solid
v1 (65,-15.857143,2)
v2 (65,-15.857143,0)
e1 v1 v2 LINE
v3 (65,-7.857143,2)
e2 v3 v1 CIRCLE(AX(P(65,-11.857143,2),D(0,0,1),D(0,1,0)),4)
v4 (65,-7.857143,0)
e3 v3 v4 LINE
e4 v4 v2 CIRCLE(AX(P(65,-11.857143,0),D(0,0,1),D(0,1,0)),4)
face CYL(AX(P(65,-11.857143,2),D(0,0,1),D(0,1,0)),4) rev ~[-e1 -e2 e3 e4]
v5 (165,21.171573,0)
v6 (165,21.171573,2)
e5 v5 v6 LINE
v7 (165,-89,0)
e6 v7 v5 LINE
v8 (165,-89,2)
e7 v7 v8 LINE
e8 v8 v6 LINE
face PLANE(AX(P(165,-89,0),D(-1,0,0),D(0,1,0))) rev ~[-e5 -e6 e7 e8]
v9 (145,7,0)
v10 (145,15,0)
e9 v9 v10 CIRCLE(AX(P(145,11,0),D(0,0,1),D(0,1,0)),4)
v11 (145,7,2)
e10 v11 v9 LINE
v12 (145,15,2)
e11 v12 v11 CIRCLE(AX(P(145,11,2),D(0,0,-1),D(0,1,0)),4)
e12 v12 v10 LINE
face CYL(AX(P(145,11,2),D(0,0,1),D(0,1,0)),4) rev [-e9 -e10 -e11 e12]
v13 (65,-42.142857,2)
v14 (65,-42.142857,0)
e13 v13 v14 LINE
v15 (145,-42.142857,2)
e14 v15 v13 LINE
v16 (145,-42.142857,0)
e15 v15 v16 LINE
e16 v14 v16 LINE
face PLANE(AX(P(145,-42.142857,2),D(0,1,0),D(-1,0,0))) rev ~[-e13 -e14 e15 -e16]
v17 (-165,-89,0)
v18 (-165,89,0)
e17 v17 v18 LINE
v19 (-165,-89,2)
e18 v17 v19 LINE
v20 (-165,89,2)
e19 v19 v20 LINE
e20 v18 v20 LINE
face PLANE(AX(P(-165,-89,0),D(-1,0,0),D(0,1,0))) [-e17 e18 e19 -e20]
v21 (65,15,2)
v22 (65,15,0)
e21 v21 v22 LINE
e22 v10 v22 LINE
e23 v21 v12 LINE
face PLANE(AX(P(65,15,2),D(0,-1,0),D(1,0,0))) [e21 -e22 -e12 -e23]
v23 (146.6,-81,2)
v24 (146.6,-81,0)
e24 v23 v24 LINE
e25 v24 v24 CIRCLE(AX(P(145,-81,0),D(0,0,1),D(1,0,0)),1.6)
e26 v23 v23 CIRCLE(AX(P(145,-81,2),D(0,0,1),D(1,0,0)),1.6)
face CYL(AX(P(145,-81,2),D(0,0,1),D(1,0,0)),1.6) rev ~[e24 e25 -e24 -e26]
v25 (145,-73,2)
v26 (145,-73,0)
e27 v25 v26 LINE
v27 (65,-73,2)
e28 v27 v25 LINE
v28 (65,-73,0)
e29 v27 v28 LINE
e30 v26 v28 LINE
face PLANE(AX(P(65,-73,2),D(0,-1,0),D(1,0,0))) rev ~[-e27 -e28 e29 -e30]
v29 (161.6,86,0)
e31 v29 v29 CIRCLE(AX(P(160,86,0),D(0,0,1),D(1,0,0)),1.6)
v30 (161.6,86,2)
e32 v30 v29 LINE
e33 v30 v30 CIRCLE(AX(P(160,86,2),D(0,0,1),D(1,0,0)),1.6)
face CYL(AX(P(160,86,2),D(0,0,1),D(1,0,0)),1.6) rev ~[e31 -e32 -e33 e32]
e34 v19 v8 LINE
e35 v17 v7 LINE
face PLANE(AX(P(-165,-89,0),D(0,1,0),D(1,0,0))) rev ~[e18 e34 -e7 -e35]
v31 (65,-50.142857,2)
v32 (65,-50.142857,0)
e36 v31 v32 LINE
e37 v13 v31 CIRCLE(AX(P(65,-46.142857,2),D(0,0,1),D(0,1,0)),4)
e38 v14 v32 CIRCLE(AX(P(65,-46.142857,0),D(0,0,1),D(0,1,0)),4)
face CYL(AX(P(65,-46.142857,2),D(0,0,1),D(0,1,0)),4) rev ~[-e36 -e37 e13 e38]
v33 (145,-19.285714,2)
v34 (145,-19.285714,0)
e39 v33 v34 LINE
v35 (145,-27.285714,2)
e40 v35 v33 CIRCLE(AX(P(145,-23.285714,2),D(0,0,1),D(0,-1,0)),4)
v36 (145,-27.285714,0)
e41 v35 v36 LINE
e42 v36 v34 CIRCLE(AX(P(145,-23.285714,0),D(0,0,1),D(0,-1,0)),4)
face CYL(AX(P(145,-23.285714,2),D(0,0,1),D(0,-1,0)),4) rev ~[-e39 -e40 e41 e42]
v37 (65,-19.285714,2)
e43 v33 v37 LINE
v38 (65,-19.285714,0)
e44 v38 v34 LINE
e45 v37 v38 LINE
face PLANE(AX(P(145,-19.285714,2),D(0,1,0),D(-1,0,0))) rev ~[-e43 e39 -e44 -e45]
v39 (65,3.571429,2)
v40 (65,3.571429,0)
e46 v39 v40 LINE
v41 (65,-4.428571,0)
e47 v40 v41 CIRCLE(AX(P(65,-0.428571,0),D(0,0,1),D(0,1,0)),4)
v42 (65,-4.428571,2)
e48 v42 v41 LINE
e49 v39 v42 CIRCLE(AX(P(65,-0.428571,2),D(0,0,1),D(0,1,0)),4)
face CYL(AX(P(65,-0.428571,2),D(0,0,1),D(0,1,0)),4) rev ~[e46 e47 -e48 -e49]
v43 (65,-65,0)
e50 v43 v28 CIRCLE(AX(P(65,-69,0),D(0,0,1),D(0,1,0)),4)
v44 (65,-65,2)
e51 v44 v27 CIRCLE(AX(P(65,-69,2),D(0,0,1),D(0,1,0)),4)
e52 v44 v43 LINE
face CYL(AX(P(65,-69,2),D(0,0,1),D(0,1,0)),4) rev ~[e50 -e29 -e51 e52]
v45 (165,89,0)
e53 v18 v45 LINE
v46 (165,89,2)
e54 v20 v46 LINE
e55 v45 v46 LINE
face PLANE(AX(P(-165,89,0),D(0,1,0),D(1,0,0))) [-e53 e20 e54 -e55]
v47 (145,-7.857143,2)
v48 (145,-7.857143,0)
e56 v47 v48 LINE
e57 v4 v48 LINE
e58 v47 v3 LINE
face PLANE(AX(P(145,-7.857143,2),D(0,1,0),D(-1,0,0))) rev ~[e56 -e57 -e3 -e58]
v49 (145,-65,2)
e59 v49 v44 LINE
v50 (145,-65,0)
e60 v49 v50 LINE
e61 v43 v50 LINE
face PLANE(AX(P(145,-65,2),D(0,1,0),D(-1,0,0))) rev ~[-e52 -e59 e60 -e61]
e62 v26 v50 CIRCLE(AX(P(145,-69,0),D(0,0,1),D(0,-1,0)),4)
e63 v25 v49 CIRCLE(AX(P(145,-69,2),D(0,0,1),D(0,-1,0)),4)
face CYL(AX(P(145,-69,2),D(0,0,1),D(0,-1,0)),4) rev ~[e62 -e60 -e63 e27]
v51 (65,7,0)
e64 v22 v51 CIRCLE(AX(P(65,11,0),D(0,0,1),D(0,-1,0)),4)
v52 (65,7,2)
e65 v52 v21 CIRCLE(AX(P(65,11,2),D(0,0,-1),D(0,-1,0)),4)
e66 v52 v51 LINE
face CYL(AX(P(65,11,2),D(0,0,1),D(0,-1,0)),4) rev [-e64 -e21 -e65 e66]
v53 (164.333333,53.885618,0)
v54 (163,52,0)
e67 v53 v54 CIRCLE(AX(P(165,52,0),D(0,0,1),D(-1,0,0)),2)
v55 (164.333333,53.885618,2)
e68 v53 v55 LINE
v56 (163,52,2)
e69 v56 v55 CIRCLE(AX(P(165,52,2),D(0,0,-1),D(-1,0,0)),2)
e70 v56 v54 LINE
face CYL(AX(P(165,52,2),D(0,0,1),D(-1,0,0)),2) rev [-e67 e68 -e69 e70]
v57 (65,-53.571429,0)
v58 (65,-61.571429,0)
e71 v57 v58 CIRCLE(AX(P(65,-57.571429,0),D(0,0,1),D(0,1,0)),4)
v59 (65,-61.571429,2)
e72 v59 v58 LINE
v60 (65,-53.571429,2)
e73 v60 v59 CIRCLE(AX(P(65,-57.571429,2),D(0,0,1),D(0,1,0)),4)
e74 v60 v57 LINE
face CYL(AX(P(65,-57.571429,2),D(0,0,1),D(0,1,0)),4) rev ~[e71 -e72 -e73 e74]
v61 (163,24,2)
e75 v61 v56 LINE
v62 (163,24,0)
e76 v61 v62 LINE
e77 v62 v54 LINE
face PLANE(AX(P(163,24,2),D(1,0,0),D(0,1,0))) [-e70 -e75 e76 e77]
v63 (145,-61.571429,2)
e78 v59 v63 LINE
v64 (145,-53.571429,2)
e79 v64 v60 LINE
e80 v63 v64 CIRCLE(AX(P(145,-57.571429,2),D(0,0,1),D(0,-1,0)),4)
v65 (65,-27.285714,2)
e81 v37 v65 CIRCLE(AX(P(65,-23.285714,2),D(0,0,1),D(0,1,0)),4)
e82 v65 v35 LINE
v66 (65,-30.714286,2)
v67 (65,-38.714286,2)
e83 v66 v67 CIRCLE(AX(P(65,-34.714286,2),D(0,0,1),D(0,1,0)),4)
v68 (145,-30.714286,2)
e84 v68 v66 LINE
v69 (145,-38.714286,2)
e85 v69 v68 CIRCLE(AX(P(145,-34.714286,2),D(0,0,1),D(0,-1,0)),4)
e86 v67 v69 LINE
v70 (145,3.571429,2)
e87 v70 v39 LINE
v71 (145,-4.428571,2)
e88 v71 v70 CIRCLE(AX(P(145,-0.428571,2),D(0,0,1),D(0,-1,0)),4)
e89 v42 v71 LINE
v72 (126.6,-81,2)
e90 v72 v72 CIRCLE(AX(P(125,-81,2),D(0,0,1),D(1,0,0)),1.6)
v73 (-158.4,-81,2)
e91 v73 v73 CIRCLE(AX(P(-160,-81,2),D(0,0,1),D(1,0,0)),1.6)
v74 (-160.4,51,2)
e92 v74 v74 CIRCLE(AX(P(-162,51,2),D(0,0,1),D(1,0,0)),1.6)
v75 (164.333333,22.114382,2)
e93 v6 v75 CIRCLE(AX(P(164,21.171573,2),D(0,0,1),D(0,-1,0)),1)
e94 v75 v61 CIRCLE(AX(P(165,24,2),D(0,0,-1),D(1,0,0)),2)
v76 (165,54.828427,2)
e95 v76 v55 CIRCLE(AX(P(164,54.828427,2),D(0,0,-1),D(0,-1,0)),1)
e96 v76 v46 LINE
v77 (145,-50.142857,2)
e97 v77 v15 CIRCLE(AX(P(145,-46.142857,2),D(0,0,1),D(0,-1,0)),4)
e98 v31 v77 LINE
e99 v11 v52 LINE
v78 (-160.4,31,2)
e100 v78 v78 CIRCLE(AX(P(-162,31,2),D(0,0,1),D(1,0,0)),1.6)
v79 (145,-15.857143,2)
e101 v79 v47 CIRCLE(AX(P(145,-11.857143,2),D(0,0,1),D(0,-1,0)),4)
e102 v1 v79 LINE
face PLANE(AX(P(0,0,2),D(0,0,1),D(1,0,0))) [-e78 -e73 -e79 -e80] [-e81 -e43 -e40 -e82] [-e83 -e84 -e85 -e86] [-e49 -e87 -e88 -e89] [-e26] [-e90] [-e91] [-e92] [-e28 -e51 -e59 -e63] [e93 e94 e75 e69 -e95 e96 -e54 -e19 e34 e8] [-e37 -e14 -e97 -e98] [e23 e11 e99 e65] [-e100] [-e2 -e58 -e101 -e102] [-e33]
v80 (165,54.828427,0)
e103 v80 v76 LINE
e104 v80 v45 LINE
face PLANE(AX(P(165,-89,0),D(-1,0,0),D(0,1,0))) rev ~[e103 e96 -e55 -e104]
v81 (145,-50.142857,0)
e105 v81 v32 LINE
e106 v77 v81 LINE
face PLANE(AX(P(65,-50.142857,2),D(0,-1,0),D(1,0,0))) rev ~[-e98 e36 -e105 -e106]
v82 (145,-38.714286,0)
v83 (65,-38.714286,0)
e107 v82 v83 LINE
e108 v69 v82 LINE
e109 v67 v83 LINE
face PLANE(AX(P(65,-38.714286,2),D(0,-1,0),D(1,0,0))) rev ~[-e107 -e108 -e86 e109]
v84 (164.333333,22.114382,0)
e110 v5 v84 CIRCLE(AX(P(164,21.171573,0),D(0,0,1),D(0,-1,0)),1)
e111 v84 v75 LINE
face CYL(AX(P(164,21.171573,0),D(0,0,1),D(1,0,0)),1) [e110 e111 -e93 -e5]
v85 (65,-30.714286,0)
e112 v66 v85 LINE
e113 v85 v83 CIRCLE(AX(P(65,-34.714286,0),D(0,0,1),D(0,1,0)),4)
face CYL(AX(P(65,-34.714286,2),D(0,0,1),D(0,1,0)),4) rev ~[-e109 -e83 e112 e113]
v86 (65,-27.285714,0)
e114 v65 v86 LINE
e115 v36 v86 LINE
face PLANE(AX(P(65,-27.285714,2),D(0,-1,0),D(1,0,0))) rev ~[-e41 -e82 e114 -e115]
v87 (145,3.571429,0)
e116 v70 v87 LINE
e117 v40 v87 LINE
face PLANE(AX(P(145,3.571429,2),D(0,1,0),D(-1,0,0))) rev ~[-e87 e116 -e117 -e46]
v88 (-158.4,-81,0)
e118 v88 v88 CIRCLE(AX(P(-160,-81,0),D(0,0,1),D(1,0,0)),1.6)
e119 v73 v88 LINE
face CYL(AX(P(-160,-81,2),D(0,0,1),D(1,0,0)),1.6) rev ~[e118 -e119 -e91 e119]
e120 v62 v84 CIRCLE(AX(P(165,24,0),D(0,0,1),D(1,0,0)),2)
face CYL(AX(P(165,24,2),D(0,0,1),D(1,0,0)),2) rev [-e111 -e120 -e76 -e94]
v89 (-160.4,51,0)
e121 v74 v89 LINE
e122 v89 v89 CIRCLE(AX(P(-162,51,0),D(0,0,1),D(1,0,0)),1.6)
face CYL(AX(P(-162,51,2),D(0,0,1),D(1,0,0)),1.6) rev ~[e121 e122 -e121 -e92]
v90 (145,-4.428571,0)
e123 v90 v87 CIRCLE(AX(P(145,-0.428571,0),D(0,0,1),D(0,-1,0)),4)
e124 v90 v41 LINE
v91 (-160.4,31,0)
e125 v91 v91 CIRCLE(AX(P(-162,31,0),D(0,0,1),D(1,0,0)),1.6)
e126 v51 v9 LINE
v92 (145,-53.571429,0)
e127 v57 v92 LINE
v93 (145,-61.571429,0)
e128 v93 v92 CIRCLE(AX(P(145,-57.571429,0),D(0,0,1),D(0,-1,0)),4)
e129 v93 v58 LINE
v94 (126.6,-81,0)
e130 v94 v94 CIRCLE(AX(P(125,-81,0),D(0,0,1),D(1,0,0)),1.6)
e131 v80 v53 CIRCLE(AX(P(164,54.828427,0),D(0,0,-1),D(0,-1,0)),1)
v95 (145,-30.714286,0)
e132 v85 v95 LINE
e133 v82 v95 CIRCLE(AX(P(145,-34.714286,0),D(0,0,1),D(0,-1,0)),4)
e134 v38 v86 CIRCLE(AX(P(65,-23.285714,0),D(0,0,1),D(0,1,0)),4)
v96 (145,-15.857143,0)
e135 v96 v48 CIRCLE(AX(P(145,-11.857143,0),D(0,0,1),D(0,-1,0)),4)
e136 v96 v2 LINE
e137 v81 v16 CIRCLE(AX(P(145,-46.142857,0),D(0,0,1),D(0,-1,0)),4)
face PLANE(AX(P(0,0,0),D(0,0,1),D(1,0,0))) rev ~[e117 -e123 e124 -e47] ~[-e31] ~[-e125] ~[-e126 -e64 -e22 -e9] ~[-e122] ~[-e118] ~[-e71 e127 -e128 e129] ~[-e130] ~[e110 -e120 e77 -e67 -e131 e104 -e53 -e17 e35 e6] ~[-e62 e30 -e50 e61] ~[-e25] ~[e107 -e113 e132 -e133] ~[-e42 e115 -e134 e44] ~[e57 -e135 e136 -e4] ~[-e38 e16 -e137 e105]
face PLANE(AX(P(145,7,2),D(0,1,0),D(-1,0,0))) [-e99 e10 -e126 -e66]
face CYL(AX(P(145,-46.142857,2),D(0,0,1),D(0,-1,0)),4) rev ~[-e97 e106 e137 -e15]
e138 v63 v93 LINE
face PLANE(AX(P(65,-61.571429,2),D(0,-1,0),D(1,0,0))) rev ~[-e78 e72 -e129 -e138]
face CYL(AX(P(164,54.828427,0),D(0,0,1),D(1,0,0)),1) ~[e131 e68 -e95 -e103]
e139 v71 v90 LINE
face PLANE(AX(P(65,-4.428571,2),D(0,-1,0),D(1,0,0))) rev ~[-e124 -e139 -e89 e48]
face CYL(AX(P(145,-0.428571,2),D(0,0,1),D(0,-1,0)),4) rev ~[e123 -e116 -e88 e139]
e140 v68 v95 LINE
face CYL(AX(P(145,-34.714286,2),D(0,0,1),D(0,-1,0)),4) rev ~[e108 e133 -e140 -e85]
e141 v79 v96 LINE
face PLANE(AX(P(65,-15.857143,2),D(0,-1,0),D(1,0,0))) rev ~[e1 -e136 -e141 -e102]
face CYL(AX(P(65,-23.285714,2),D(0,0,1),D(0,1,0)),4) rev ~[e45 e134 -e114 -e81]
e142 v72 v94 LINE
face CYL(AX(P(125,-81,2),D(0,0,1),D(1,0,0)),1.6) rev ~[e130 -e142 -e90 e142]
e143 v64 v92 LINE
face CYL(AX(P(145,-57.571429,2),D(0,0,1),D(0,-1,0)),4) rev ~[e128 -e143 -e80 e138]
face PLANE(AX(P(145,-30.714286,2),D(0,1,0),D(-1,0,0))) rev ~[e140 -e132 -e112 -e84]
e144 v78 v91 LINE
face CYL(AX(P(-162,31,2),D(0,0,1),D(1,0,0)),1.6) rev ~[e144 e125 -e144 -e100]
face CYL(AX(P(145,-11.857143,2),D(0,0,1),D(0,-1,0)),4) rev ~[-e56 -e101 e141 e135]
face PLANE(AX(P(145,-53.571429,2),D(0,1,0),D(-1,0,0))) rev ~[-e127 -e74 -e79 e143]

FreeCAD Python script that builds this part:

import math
import FreeCAD as App
import Part
import Sketcher


def edges_at(feature, points):
    """Names of the edges that pass closest to the given points."""
    edges = feature.Shape.Edges
    near = lambda p: min(range(len(edges)), key=lambda i: edges[i].distToShape(Part.Vertex(*p))[0])
    return sorted({f"Edge{near(p) + 1}" for p in points})

doc = App.newDocument("Part")
params = doc.addObject("Spreadsheet::Sheet", "Params")
for row, (alias, value) in enumerate([
    ("sketch1_width", "330 mm"),
    ("sketch1_height", "178 mm"),
    ("pad1_length", "2 mm"),
    ("sketch2_radius", "4 mm"),
    ("sketch2_width", "80 mm"),
    ("sketch3_radius", "4 mm"),
    ("sketch3_width", "80 mm"),
    ("sketch4_radius", "4 mm"),
    ("sketch4_width", "80 mm"),
    ("sketch5_radius", "4 mm"),
    ("sketch5_width", "80 mm"),
    ("sketch6_radius", "4 mm"),
    ("sketch6_width", "80 mm"),
    ("sketch7_radius", "4 mm"),
    ("sketch7_width", "80 mm"),
    ("sketch8_radius", "4 mm"),
    ("sketch8_width", "80 mm"),
    ("sketch9_radius", "4 mm"),
    ("sketch9_width", "80 mm"),
    ("sketch10_diameter", "3.2 mm"),
    ("sketch11_diameter", "3.2 mm"),
    ("sketch12_diameter", "3.2 mm"),
    ("sketch13_diameter", "3.2 mm"),
    ("sketch14_diameter", "3.2 mm"),
    ("sketch15_diameter", "3.2 mm"),
    ("sketch16_radius", "2 mm"),
    ("sketch16_height", "28 mm"),
    ("fillet_radius", "1 mm"),
], start=1):
    params.set(f"A{row}", alias)
    params.set(f"B{row}", "=" + value)
    params.setAlias(f"B{row}", alias)

body = doc.addObject("PartDesign::Body", "Body")

# Sketch on XY plane
sketch1 = body.newObject("Sketcher::SketchObject", "Sketch")
sketch1.AttachmentSupport = (doc.getObject("XY_Plane"), [""])
sketch1.MapMode = "FlatFace"
sketch1.addGeometry([
    Part.LineSegment(App.Vector(-165, 89, 0), App.Vector(-165, -89, 0)),
    Part.LineSegment(App.Vector(-165, -89, 0), App.Vector(165, -89, 0)),
    Part.LineSegment(App.Vector(165, -89, 0), App.Vector(165, 89, 0)),
    Part.LineSegment(App.Vector(165, 89, 0), App.Vector(-165, 89, 0)),
], False)
sketch1.addConstraint([
    Sketcher.Constraint("Coincident", 0, 2, 1, 1),
    Sketcher.Constraint("Coincident", 1, 2, 2, 1),
    Sketcher.Constraint("Coincident", 2, 2, 3, 1),
    Sketcher.Constraint("Coincident", 3, 2, 0, 1),
    Sketcher.Constraint("Vertical", 0),
    Sketcher.Constraint("Horizontal", 1),
    Sketcher.Constraint("Vertical", 2),
    Sketcher.Constraint("Horizontal", 3),
    Sketcher.Constraint("Symmetric", 0, 2, 2, 2, -1, 1),
    Sketcher.Constraint("DistanceX", 1, 1, 1, 2, 330.0),
    Sketcher.Constraint("DistanceY", 0, 2, 0, 1, 178.0),
])
sketch1.setExpression("Constraints[9]", "Params.sketch1_width")
sketch1.setExpression("Constraints[10]", "Params.sketch1_height")
pad1 = body.newObject("PartDesign::Pad", "Pad")
pad1.Profile = sketch1
pad1.setExpression("Length", "Params.pad1_length")

# Sketch on XY plane
sketch2 = body.newObject("Sketcher::SketchObject", "Sketch001")
sketch2.AttachmentSupport = (doc.getObject("XY_Plane"), [""])
sketch2.MapMode = "FlatFace"
sketch2.AttachmentOffset = App.Placement(App.Vector(0, 0, 2), App.Rotation())
sketch2.addGeometry([
    Part.LineSegment(App.Vector(145, 15, 0), App.Vector(65, 15, 0)),
    Part.ArcOfCircle(Part.Circle(App.Vector(65, 11, 0), App.Vector(0, 0, 1), 4), math.radians(90), math.radians(270)),
    Part.LineSegment(App.Vector(65, 7, 0), App.Vector(145, 7, 0)),
    Part.ArcOfCircle(Part.Circle(App.Vector(145, 11, 0), App.Vector(0, 0, 1), 4), math.radians(-90), math.radians(90)),
], False)
sketch2.addConstraint([
    Sketcher.Constraint("Tangent", 0, 2, 1, 1),
    Sketcher.Constraint("Tangent", 1, 2, 2, 1),
    Sketcher.Constraint("Tangent", 2, 2, 3, 1),
    Sketcher.Constraint("Tangent", 3, 2, 0, 1),
    Sketcher.Constraint("Horizontal", 0),
    Sketcher.Constraint("Horizontal", 2),
    Sketcher.Constraint("Radius", 1, 4.0),
    Sketcher.Constraint("DistanceX", 0, 2, 0, 1, 80.0),
    Sketcher.Constraint("DistanceX", -1, 1, 1, 3, 65.0),
    Sketcher.Constraint("DistanceY", -1, 1, 1, 3, 11.0),
])
sketch2.setExpression("Constraints[6]", "Params.sketch2_radius")
sketch2.setExpression("Constraints[7]", "Params.sketch2_width")
pocket1 = body.newObject("PartDesign::Pocket", "Pocket")
pocket1.Profile = sketch2
pocket1.Type = "UpToFirst"

# Sketch on XY plane
sketch3 = body.newObject("Sketcher::SketchObject", "Sketch002")
sketch3.AttachmentSupport = (doc.getObject("XY_Plane"), [""])
sketch3.MapMode = "FlatFace"
sketch3.AttachmentOffset = App.Placement(App.Vector(0, 0, 2), App.Rotation())
sketch3.addGeometry([
    Part.LineSegment(App.Vector(65, -4.4, 0), App.Vector(145, -4.4, 0)),
    Part.ArcOfCircle(Part.Circle(App.Vector(145, -0.4, 0), App.Vector(0, 0, 1), 4), math.radians(-90), math.radians(90)),
    Part.LineSegment(App.Vector(145, 3.6, 0), App.Vector(65, 3.6, 0)),
    Part.ArcOfCircle(Part.Circle(App.Vector(65, -0.4, 0), App.Vector(0, 0, 1), 4), math.radians(90), math.radians(270)),
], False)
sketch3.addConstraint([
    Sketcher.Constraint("Tangent", 0, 2, 1, 1),
    Sketcher.Constraint("Tangent", 1, 2, 2, 1),
    Sketcher.Constraint("Tangent", 2, 2, 3, 1),
    Sketcher.Constraint("Tangent", 3, 2, 0, 1),
    Sketcher.Constraint("Horizontal", 0),
    Sketcher.Constraint("Horizontal", 2),
    Sketcher.Constraint("Radius", 1, 4.0),
    Sketcher.Constraint("DistanceX", 0, 1, 0, 2, 80.0),
    Sketcher.Constraint("DistanceX", -1, 1, 1, 3, 145.0),
    Sketcher.Constraint("DistanceY", 1, 3, -1, 1, 0.428571),
])
sketch3.setExpression("Constraints[6]", "Params.sketch3_radius")
sketch3.setExpression("Constraints[7]", "Params.sketch3_width")
pocket2 = body.newObject("PartDesign::Pocket", "Pocket001")
pocket2.Profile = sketch3
pocket2.Type = "UpToFirst"

# Sketch on XY plane
sketch4 = body.newObject("Sketcher::SketchObject", "Sketch003")
sketch4.AttachmentSupport = (doc.getObject("XY_Plane"), [""])
sketch4.MapMode = "FlatFace"
sketch4.AttachmentOffset = App.Placement(App.Vector(0, 0, 2), App.Rotation())
sketch4.addGeometry([
    Part.LineSegment(App.Vector(65, -15.9, 0), App.Vector(145, -15.9, 0)),
    Part.ArcOfCircle(Part.Circle(App.Vector(145, -11.9, 0), App.Vector(0, 0, 1), 4), math.radians(-90), math.radians(90)),
    Part.LineSegment(App.Vector(145, -7.9, 0), App.Vector(65, -7.9, 0)),
    Part.ArcOfCircle(Part.Circle(App.Vector(65, -11.9, 0), App.Vector(0, 0, 1), 4), math.radians(90), math.radians(270)),
], False)
sketch4.addConstraint([
    Sketcher.Constraint("Tangent", 0, 2, 1, 1),
    Sketcher.Constraint("Tangent", 1, 2, 2, 1),
    Sketcher.Constraint("Tangent", 2, 2, 3, 1),
    Sketcher.Constraint("Tangent", 3, 2, 0, 1),
    Sketcher.Constraint("Horizontal", 0),
    Sketcher.Constraint("Horizontal", 2),
    Sketcher.Constraint("Radius", 1, 4.0),
    Sketcher.Constraint("DistanceX", 0, 1, 0, 2, 80.0),
    Sketcher.Constraint("DistanceX", -1, 1, 1, 3, 145.0),
    Sketcher.Constraint("DistanceY", 1, 3, -1, 1, 11.857143),
])
sketch4.setExpression("Constraints[6]", "Params.sketch4_radius")
sketch4.setExpression("Constraints[7]", "Params.sketch4_width")
pocket3 = body.newObject("PartDesign::Pocket", "Pocket002")
pocket3.Profile = sketch4
pocket3.Type = "UpToFirst"

# Sketch on XY plane
sketch5 = body.newObject("Sketcher::SketchObject", "Sketch004")
sketch5.AttachmentSupport = (doc.getObject("XY_Plane"), [""])
sketch5.MapMode = "FlatFace"
sketch5.AttachmentOffset = App.Placement(App.Vector(0, 0, 2), App.Rotation())
sketch5.addGeometry([
    Part.LineSegment(App.Vector(65, -27.3, 0), App.Vector(145, -27.3, 0)),
    Part.ArcOfCircle(Part.Circle(App.Vector(145, -23.3, 0), App.Vector(0, 0, 1), 4), math.radians(-90), math.radians(90)),
    Part.LineSegment(App.Vector(145, -19.3, 0), App.Vector(65, -19.3, 0)),
    Part.ArcOfCircle(Part.Circle(App.Vector(65, -23.3, 0), App.Vector(0, 0, 1), 4), math.radians(90), math.radians(270)),
], False)
sketch5.addConstraint([
    Sketcher.Constraint("Tangent", 0, 2, 1, 1),
    Sketcher.Constraint("Tangent", 1, 2, 2, 1),
    Sketcher.Constraint("Tangent", 2, 2, 3, 1),
    Sketcher.Constraint("Tangent", 3, 2, 0, 1),
    Sketcher.Constraint("Horizontal", 0),
    Sketcher.Constraint("Horizontal", 2),
    Sketcher.Constraint("Radius", 1, 4.0),
    Sketcher.Constraint("DistanceX", 0, 1, 0, 2, 80.0),
    Sketcher.Constraint("DistanceX", -1, 1, 1, 3, 145.0),
    Sketcher.Constraint("DistanceY", 1, 3, -1, 1, 23.285714),
])
sketch5.setExpression("Constraints[6]", "Params.sketch5_radius")
sketch5.setExpression("Constraints[7]", "Params.sketch5_width")
pocket4 = body.newObject("PartDesign::Pocket", "Pocket003")
pocket4.Profile = sketch5
pocket4.Type = "UpToFirst"

# Sketch on XY plane
sketch6 = body.newObject("Sketcher::SketchObject", "Sketch005")
sketch6.AttachmentSupport = (doc.getObject("XY_Plane"), [""])
sketch6.MapMode = "FlatFace"
sketch6.AttachmentOffset = App.Placement(App.Vector(0, 0, 2), App.Rotation())
sketch6.addGeometry([
    Part.LineSegment(App.Vector(65, -38.7, 0), App.Vector(145, -38.7, 0)),
    Part.ArcOfCircle(Part.Circle(App.Vector(145, -34.7, 0), App.Vector(0, 0, 1), 4), math.radians(-90), math.radians(90)),
    Part.LineSegment(App.Vector(145, -30.7, 0), App.Vector(65, -30.7, 0)),
    Part.ArcOfCircle(Part.Circle(App.Vector(65, -34.7, 0), App.Vector(0, 0, 1), 4), math.radians(90), math.radians(270)),
], False)
sketch6.addConstraint([
    Sketcher.Constraint("Tangent", 0, 2, 1, 1),
    Sketcher.Constraint("Tangent", 1, 2, 2, 1),
    Sketcher.Constraint("Tangent", 2, 2, 3, 1),
    Sketcher.Constraint("Tangent", 3, 2, 0, 1),
    Sketcher.Constraint("Horizontal", 0),
    Sketcher.Constraint("Horizontal", 2),
    Sketcher.Constraint("Radius", 1, 4.0),
    Sketcher.Constraint("DistanceX", 0, 1, 0, 2, 80.0),
    Sketcher.Constraint("DistanceX", -1, 1, 1, 3, 145.0),
    Sketcher.Constraint("DistanceY", 1, 3, -1, 1, 34.714286),
])
sketch6.setExpression("Constraints[6]", "Params.sketch6_radius")
sketch6.setExpression("Constraints[7]", "Params.sketch6_width")
pocket5 = body.newObject("PartDesign::Pocket", "Pocket004")
pocket5.Profile = sketch6
pocket5.Type = "UpToFirst"

# Sketch on XY plane
sketch7 = body.newObject("Sketcher::SketchObject", "Sketch006")
sketch7.AttachmentSupport = (doc.getObject("XY_Plane"), [""])
sketch7.MapMode = "FlatFace"
sketch7.AttachmentOffset = App.Placement(App.Vector(0, 0, 2), App.Rotation())
sketch7.addGeometry([
    Part.LineSegment(App.Vector(65, -50.1, 0), App.Vector(145, -50.1, 0)),
    Part.ArcOfCircle(Part.Circle(App.Vector(145, -46.1, 0), App.Vector(0, 0, 1), 4), math.radians(-90), math.radians(90)),
    Part.LineSegment(App.Vector(145, -42.1, 0), App.Vector(65, -42.1, 0)),
    Part.ArcOfCircle(Part.Circle(App.Vector(65, -46.1, 0), App.Vector(0, 0, 1), 4), math.radians(90), math.radians(270)),
], False)
sketch7.addConstraint([
    Sketcher.Constraint("Tangent", 0, 2, 1, 1),
    Sketcher.Constraint("Tangent", 1, 2, 2, 1),
    Sketcher.Constraint("Tangent", 2, 2, 3, 1),
    Sketcher.Constraint("Tangent", 3, 2, 0, 1),
    Sketcher.Constraint("Horizontal", 0),
    Sketcher.Constraint("Horizontal", 2),
    Sketcher.Constraint("Radius", 1, 4.0),
    Sketcher.Constraint("DistanceX", 0, 1, 0, 2, 80.0),
    Sketcher.Constraint("DistanceX", -1, 1, 1, 3, 145.0),
    Sketcher.Constraint("DistanceY", 1, 3, -1, 1, 46.142857),
])
sketch7.setExpression("Constraints[6]", "Params.sketch7_radius")
sketch7.setExpression("Constraints[7]", "Params.sketch7_width")
pocket6 = body.newObject("PartDesign::Pocket", "Pocket005")
pocket6.Profile = sketch7
pocket6.Type = "UpToFirst"

# Sketch on XY plane
sketch8 = body.newObject("Sketcher::SketchObject", "Sketch007")
sketch8.AttachmentSupport = (doc.getObject("XY_Plane"), [""])
sketch8.MapMode = "FlatFace"
sketch8.AttachmentOffset = App.Placement(App.Vector(0, 0, 2), App.Rotation())
sketch8.addGeometry([
    Part.LineSegment(App.Vector(65, -61.6, 0), App.Vector(145, -61.6, 0)),
    Part.ArcOfCircle(Part.Circle(App.Vector(145, -57.6, 0), App.Vector(0, 0, 1), 4), math.radians(-90), math.radians(90)),
    Part.LineSegment(App.Vector(145, -53.6, 0), App.Vector(65, -53.6, 0)),
    Part.ArcOfCircle(Part.Circle(App.Vector(65, -57.6, 0), App.Vector(0, 0, 1), 4), math.radians(90), math.radians(270)),
], False)
sketch8.addConstraint([
    Sketcher.Constraint("Tangent", 0, 2, 1, 1),
    Sketcher.Constraint("Tangent", 1, 2, 2, 1),
    Sketcher.Constraint("Tangent", 2, 2, 3, 1),
    Sketcher.Constraint("Tangent", 3, 2, 0, 1),
    Sketcher.Constraint("Horizontal", 0),
    Sketcher.Constraint("Horizontal", 2),
    Sketcher.Constraint("Radius", 1, 4.0),
    Sketcher.Constraint("DistanceX", 0, 1, 0, 2, 80.0),
    Sketcher.Constraint("DistanceX", -1, 1, 1, 3, 145.0),
    Sketcher.Constraint("DistanceY", 1, 3, -1, 1, 57.571429),
])
sketch8.setExpression("Constraints[6]", "Params.sketch8_radius")
sketch8.setExpression("Constraints[7]", "Params.sketch8_width")
pocket7 = body.newObject("PartDesign::Pocket", "Pocket006")
pocket7.Profile = sketch8
pocket7.Type = "UpToFirst"

# Sketch on XY plane
sketch9 = body.newObject("Sketcher::SketchObject", "Sketch008")
sketch9.AttachmentSupport = (doc.getObject("XY_Plane"), [""])
sketch9.MapMode = "FlatFace"
sketch9.AttachmentOffset = App.Placement(App.Vector(0, 0, 2), App.Rotation())
sketch9.addGeometry([
    Part.LineSegment(App.Vector(65, -73, 0), App.Vector(145, -73, 0)),
    Part.ArcOfCircle(Part.Circle(App.Vector(145, -69, 0), App.Vector(0, 0, 1), 4), math.radians(-90), math.radians(90)),
    Part.LineSegment(App.Vector(145, -65, 0), App.Vector(65, -65, 0)),
    Part.ArcOfCircle(Part.Circle(App.Vector(65, -69, 0), App.Vector(0, 0, 1), 4), math.radians(90), math.radians(270)),
], False)
sketch9.addConstraint([
    Sketcher.Constraint("Tangent", 0, 2, 1, 1),
    Sketcher.Constraint("Tangent", 1, 2, 2, 1),
    Sketcher.Constraint("Tangent", 2, 2, 3, 1),
    Sketcher.Constraint("Tangent", 3, 2, 0, 1),
    Sketcher.Constraint("Horizontal", 0),
    Sketcher.Constraint("Horizontal", 2),
    Sketcher.Constraint("Radius", 1, 4.0),
    Sketcher.Constraint("DistanceX", 0, 1, 0, 2, 80.0),
    Sketcher.Constraint("DistanceX", -1, 1, 1, 3, 145.0),
    Sketcher.Constraint("DistanceY", 1, 3, -1, 1, 69.0),
])
sketch9.setExpression("Constraints[6]", "Params.sketch9_radius")
sketch9.setExpression("Constraints[7]", "Params.sketch9_width")
pocket8 = body.newObject("PartDesign::Pocket", "Pocket007")
pocket8.Profile = sketch9
pocket8.Type = "UpToFirst"

# Sketch on XY plane
sketch10 = body.newObject("Sketcher::SketchObject", "Sketch009")
sketch10.AttachmentSupport = (doc.getObject("XY_Plane"), [""])
sketch10.MapMode = "FlatFace"
sketch10.AttachmentOffset = App.Placement(App.Vector(0, 0, 2), App.Rotation())
sketch10.addGeometry(Part.Circle(App.Vector(-162, 51, 0), App.Vector(0, 0, 1), 1.6), False)
sketch10.addConstraint([
    Sketcher.Constraint("Diameter", 0, 3.2),
    Sketcher.Constraint("DistanceX", 0, 3, -1, 1, 162.0),
    Sketcher.Constraint("DistanceY", -1, 1, 0, 3, 51.0),
])
sketch10.setExpression("Constraints[0]", "Params.sketch10_diameter")
pocket9 = body.newObject("PartDesign::Pocket", "Pocket008")
pocket9.Profile = sketch10
pocket9.Type = "UpToFirst"

# Sketch on XY plane
sketch11 = body.newObject("Sketcher::SketchObject", "Sketch010")
sketch11.AttachmentSupport = (doc.getObject("XY_Plane"), [""])
sketch11.MapMode = "FlatFace"
sketch11.AttachmentOffset = App.Placement(App.Vector(0, 0, 2), App.Rotation())
sketch11.addGeometry(Part.Circle(App.Vector(-162, 31, 0), App.Vector(0, 0, 1), 1.6), False)
sketch11.addConstraint([
    Sketcher.Constraint("Diameter", 0, 3.2),
    Sketcher.Constraint("DistanceX", 0, 3, -1, 1, 162.0),
    Sketcher.Constraint("DistanceY", -1, 1, 0, 3, 31.0),
])
sketch11.setExpression("Constraints[0]", "Params.sketch11_diameter")
pocket10 = body.newObject("PartDesign::Pocket", "Pocket009")
pocket10.Profile = sketch11
pocket10.Type = "UpToFirst"

# Sketch on XY plane
sketch12 = body.newObject("Sketcher::SketchObject", "Sketch011")
sketch12.AttachmentSupport = (doc.getObject("XY_Plane"), [""])
sketch12.MapMode = "FlatFace"
sketch12.AttachmentOffset = App.Placement(App.Vector(0, 0, 2), App.Rotation())
sketch12.addGeometry(Part.Circle(App.Vector(-160, -81, 0), App.Vector(0, 0, 1), 1.6), False)
sketch12.addConstraint([
    Sketcher.Constraint("Diameter", 0, 3.2),
    Sketcher.Constraint("DistanceX", 0, 3, -1, 1, 160.0),
    Sketcher.Constraint("DistanceY", 0, 3, -1, 1, 81.0),
])
sketch12.setExpression("Constraints[0]", "Params.sketch12_diameter")
pocket11 = body.newObject("PartDesign::Pocket", "Pocket010")
pocket11.Profile = sketch12
pocket11.Type = "UpToFirst"

# Sketch on XY plane
sketch13 = body.newObject("Sketcher::SketchObject", "Sketch012")
sketch13.AttachmentSupport = (doc.getObject("XY_Plane"), [""])
sketch13.MapMode = "FlatFace"
sketch13.AttachmentOffset = App.Placement(App.Vector(0, 0, 2), App.Rotation())
sketch13.addGeometry(Part.Circle(App.Vector(145, -81, 0), App.Vector(0, 0, 1), 1.6), False)
sketch13.addConstraint([
    Sketcher.Constraint("Diameter", 0, 3.2),
    Sketcher.Constraint("DistanceX", -1, 1, 0, 3, 145.0),
    Sketcher.Constraint("DistanceY", 0, 3, -1, 1, 81.0),
])
sketch13.setExpression("Constraints[0]", "Params.sketch13_diameter")
pocket12 = body.newObject("PartDesign::Pocket", "Pocket011")
pocket12.Profile = sketch13
pocket12.Type = "UpToFirst"

# Sketch on XY plane
sketch14 = body.newObject("Sketcher::SketchObject", "Sketch013")
sketch14.AttachmentSupport = (doc.getObject("XY_Plane"), [""])
sketch14.MapMode = "FlatFace"
sketch14.AttachmentOffset = App.Placement(App.Vector(0, 0, 2), App.Rotation())
sketch14.addGeometry(Part.Circle(App.Vector(125, -81, 0), App.Vector(0, 0, 1), 1.6), False)
sketch14.addConstraint([
    Sketcher.Constraint("Diameter", 0, 3.2),
    Sketcher.Constraint("DistanceX", -1, 1, 0, 3, 125.0),
    Sketcher.Constraint("DistanceY", 0, 3, -1, 1, 81.0),
])
sketch14.setExpression("Constraints[0]", "Params.sketch14_diameter")
pocket13 = body.newObject("PartDesign::Pocket", "Pocket012")
pocket13.Profile = sketch14
pocket13.Type = "UpToFirst"

# Sketch on XY plane
sketch15 = body.newObject("Sketcher::SketchObject", "Sketch014")
sketch15.AttachmentSupport = (doc.getObject("XY_Plane"), [""])
sketch15.MapMode = "FlatFace"
sketch15.AttachmentOffset = App.Placement(App.Vector(0, 0, 2), App.Rotation())
sketch15.addGeometry(Part.Circle(App.Vector(160, 86, 0), App.Vector(0, 0, 1), 1.6), False)
sketch15.addConstraint([
    Sketcher.Constraint("Diameter", 0, 3.2),
    Sketcher.Constraint("DistanceX", -1, 1, 0, 3, 160.0),
    Sketcher.Constraint("DistanceY", -1, 1, 0, 3, 86.0),
])
sketch15.setExpression("Constraints[0]", "Params.sketch15_diameter")
pocket14 = body.newObject("PartDesign::Pocket", "Pocket013")
pocket14.Profile = sketch15
pocket14.Type = "UpToFirst"

# Sketch on XY plane
sketch16 = body.newObject("Sketcher::SketchObject", "Sketch015")
sketch16.AttachmentSupport = (doc.getObject("XY_Plane"), [""])
sketch16.MapMode = "FlatFace"
sketch16.AttachmentOffset = App.Placement(App.Vector(0, 0, 2), App.Rotation())
sketch16.addGeometry([
    Part.LineSegment(App.Vector(167, 24, 0), App.Vector(167, 52, 0)),
    Part.ArcOfCircle(Part.Circle(App.Vector(165, 52, 0), App.Vector(0, 0, 1), 2), math.radians(0), math.radians(180)),
    Part.LineSegment(App.Vector(163, 52, 0), App.Vector(163, 24, 0)),
    Part.ArcOfCircle(Part.Circle(App.Vector(165, 24, 0), App.Vector(0, 0, 1), 2), math.radians(180), math.radians(360)),
], False)
sketch16.addConstraint([
    Sketcher.Constraint("Tangent", 0, 2, 1, 1),
    Sketcher.Constraint("Tangent", 1, 2, 2, 1),
    Sketcher.Constraint("Tangent", 2, 2, 3, 1),
    Sketcher.Constraint("Tangent", 3, 2, 0, 1),
    Sketcher.Constraint("Vertical", 0),
    Sketcher.Constraint("Vertical", 2),
    Sketcher.Constraint("Radius", 1, 2.0),
    Sketcher.Constraint("DistanceY", 0, 1, 0, 2, 28.0),
    Sketcher.Constraint("DistanceX", -1, 1, 1, 3, 165.0),
    Sketcher.Constraint("DistanceY", -1, 1, 1, 3, 52.0),
])
sketch16.setExpression("Constraints[6]", "Params.sketch16_radius")
sketch16.setExpression("Constraints[7]", "Params.sketch16_height")
pocket15 = body.newObject("PartDesign::Pocket", "Pocket014")
pocket15.Profile = sketch16
pocket15.Type = "ThroughAll"
doc.recompute()

fillet = body.newObject("PartDesign::Fillet", "Fillet")
fillet.Base = (pocket15, edges_at(pocket15, [(165, 54, 1), (165, 22, 1)]))
fillet.setExpression("Radius", "Params.fillet_radius")

doc.recompute()
